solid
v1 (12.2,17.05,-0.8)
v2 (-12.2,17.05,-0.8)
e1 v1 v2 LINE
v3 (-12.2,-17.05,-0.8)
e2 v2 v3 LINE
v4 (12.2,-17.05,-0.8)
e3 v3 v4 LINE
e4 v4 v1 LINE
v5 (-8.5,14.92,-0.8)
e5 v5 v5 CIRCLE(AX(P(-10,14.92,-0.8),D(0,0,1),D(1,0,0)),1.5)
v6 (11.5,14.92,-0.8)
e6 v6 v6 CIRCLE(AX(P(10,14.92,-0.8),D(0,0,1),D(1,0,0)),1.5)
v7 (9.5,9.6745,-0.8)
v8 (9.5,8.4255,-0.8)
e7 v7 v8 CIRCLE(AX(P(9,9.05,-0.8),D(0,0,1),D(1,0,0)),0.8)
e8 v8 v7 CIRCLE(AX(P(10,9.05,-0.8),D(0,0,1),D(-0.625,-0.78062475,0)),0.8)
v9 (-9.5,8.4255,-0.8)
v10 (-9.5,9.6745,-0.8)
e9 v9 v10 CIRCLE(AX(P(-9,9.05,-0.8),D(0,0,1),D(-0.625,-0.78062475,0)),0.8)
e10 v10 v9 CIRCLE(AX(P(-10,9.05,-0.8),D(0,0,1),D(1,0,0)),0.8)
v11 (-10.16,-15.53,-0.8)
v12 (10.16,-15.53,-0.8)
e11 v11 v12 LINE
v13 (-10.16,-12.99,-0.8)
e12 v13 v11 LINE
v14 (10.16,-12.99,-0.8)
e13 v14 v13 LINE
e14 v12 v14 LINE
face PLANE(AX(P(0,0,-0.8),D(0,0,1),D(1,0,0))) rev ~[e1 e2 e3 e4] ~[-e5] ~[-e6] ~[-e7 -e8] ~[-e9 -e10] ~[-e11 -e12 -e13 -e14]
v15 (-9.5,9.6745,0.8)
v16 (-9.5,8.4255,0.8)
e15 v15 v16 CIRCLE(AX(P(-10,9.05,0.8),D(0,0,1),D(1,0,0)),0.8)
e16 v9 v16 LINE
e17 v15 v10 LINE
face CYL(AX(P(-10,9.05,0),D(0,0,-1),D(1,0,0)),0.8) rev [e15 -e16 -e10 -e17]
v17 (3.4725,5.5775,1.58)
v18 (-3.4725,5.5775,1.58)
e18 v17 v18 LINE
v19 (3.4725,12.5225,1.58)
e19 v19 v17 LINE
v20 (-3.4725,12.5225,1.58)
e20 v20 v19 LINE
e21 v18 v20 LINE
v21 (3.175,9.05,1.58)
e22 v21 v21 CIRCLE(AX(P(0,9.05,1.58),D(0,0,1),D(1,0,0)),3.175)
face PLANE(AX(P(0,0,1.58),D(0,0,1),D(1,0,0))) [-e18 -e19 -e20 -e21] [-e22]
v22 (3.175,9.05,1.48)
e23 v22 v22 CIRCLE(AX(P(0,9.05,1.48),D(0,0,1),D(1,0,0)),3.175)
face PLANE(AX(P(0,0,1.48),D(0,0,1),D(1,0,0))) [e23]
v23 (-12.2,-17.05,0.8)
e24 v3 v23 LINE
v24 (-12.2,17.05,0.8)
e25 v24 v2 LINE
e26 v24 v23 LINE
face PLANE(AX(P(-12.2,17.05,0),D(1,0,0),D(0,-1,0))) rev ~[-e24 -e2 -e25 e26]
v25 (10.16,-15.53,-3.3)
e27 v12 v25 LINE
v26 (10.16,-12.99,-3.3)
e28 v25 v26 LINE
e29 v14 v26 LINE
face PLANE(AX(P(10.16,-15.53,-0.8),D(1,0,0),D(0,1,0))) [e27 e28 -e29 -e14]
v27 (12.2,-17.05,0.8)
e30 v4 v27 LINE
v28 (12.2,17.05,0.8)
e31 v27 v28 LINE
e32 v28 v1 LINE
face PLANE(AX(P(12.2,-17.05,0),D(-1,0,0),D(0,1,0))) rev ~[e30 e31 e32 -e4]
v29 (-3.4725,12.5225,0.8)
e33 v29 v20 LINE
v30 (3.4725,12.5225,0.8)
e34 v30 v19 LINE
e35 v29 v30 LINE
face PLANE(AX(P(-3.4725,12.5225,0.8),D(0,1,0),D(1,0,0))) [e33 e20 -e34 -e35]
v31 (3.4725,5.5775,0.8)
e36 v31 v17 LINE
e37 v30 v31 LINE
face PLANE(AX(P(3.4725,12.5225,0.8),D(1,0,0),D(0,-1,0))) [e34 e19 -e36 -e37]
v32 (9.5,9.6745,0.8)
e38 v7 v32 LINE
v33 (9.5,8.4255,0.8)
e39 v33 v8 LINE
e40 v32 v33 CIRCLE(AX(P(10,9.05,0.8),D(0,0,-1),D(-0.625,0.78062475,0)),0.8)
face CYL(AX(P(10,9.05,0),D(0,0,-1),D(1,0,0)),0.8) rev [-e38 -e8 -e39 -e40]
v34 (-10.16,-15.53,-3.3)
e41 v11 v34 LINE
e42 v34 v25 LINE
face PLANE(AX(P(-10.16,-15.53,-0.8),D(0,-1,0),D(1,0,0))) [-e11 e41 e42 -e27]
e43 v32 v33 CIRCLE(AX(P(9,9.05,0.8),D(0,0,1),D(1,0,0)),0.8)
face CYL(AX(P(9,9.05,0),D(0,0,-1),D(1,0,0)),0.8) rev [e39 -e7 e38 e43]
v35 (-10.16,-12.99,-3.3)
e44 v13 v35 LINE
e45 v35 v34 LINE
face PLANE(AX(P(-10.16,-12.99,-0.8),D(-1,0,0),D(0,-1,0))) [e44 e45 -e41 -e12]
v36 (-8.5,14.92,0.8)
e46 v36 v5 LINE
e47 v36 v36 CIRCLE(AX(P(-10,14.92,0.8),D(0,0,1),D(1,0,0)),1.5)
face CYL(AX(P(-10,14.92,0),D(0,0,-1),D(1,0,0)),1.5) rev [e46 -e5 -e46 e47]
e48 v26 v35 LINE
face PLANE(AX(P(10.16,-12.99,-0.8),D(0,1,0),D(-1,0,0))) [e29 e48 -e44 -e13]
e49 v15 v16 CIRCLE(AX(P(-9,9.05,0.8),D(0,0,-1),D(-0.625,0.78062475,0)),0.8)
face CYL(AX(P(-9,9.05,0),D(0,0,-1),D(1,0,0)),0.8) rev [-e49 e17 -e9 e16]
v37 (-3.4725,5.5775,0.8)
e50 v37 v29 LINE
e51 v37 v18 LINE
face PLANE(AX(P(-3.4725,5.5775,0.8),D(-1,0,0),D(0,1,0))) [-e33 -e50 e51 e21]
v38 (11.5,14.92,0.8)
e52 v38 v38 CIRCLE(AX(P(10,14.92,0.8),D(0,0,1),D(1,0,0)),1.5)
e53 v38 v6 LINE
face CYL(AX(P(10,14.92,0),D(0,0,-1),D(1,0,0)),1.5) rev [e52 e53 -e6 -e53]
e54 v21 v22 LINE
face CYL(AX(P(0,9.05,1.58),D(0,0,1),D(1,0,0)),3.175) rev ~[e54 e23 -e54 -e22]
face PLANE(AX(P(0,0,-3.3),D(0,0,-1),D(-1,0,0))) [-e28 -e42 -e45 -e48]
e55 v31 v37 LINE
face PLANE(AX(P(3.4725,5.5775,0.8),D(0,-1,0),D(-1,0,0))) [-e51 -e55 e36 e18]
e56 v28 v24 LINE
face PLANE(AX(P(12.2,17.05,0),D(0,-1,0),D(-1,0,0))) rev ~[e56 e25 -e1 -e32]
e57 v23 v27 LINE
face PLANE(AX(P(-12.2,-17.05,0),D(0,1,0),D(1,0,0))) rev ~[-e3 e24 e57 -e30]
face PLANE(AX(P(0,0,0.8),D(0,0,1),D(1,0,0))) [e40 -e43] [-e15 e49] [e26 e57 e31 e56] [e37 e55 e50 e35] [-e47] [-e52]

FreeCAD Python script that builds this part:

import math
import FreeCAD as App
import Part
import Sketcher

V = App.Vector

doc = App.newDocument("Part")
body = doc.addObject("PartDesign::Body", "Body")

# Sketch on XY plane
sketch1 = body.newObject("Sketcher::SketchObject", "Sketch")
sketch1.AttachmentSupport = (doc.getObject("XY_Plane"), [""])
sketch1.MapMode = "FlatFace"
sketch1.addGeometry([
    Part.LineSegment(V(-12.2, 17.1, 0), V(-12.2, -17.1, 0)),  # 0
    Part.LineSegment(V(-12.2, -17.1, 0), V(12.2, -17.1, 0)),  # 1
    Part.LineSegment(V(12.2, -17.1, 0), V(12.2, 17.1, 0)),  # 2
    Part.LineSegment(V(12.2, 17.1, 0), V(-12.2, 17.1, 0)),  # 3
    Part.ArcOfCircle(Part.Circle(V(-9, 9.1, 0), V(0, 0, 1), 0.8), math.radians(-129), math.radians(129)),  # 4
    Part.ArcOfCircle(Part.Circle(V(-10, 9.1, 0), V(0, 0, 1), 0.8), math.radians(51), math.radians(309)),  # 5
    Part.Circle(V(-10, 14.9, 0), V(0, 0, 1), 1.5),  # 6
    Part.ArcOfCircle(Part.Circle(V(9, 9.1, 0), V(0, 0, 1), 0.8), math.radians(51), math.radians(309)),  # 7
    Part.ArcOfCircle(Part.Circle(V(10, 9.1, 0), V(0, 0, 1), 0.8), math.radians(-129), math.radians(129)),  # 8
    Part.Circle(V(10, 14.9, 0), V(0, 0, 1), 1.5),  # 9
], False)
sketch1.addConstraint([
    Sketcher.Constraint("Coincident", 0, 2, 1, 1),
    Sketcher.Constraint("Coincident", 1, 2, 2, 1),
    Sketcher.Constraint("Coincident", 2, 2, 3, 1),
    Sketcher.Constraint("Coincident", 3, 2, 0, 1),
    Sketcher.Constraint("Coincident", 4, 1, 5, 2),
    Sketcher.Constraint("Coincident", 5, 1, 4, 2),
    Sketcher.Constraint("Coincident", 7, 1, 8, 2),
    Sketcher.Constraint("Coincident", 8, 1, 7, 2),
    Sketcher.Constraint("Vertical", 0),
    Sketcher.Constraint("Horizontal", 1),
    Sketcher.Constraint("Vertical", 2),
    Sketcher.Constraint("Horizontal", 3),
    Sketcher.Constraint("Equal", 4, 5),
    Sketcher.Constraint("Equal", 5, 7),
    Sketcher.Constraint("Equal", 7, 8),
    Sketcher.Constraint("Equal", 6, 9),
    Sketcher.Constraint("Symmetric", 0, 2, 2, 2, -1, 1),
    Sketcher.Constraint("Symmetric", 4, 3, 7, 3, -2),
    Sketcher.Constraint("Symmetric", 5, 3, 8, 3, -2),
    Sketcher.Constraint("Symmetric", 6, 3, 9, 3, -2),
    Sketcher.Constraint("Horizontal", 4, 3, 5, 3),
    Sketcher.Constraint("Vertical", 5, 3, 6, 3),
    Sketcher.Constraint("Diameter", 6, 3.0),
    Sketcher.Constraint("Radius", 4, 0.8),
    Sketcher.Constraint("DistanceX", 1, 1, 1, 2, 24.4),
    Sketcher.Constraint("DistanceY", 0, 2, 0, 1, 34.1),
    Sketcher.Constraint("DistanceX", 5, 3, -1, 1, 10.0),
    Sketcher.Constraint("DistanceX", 4, 3, 7, 3, 18.0),
    Sketcher.Constraint("DistanceY", 8, 3, 2, 2, 8.0),
    Sketcher.Constraint("DistanceY", 9, 3, 2, 2, 2.13),
])
pad1 = body.newObject("PartDesign::Pad", "Pad")
pad1.Profile = sketch1
pad1.Length = 1.6
pad1.Midplane = True

# Sketch on XY plane
sketch2 = body.newObject("Sketcher::SketchObject", "Sketch001")
sketch2.AttachmentSupport = (doc.getObject("XY_Plane"), [""])
sketch2.MapMode = "FlatFace"
sketch2.AttachmentOffset = App.Placement(V(0, 0, -0.8), App.Rotation())
sketch2.addGeometry([
    Part.LineSegment(V(-10.2, -13, 0), V(10.2, -13, 0)),
    Part.LineSegment(V(10.2, -13, 0), V(10.2, -15.5, 0)),
    Part.LineSegment(V(10.2, -15.5, 0), V(-10.2, -15.5, 0)),
    Part.LineSegment(V(-10.2, -15.5, 0), V(-10.2, -13, 0)),
], False)
sketch2.addConstraint([
    Sketcher.Constraint("Coincident", 0, 2, 1, 1),
    Sketcher.Constraint("Coincident", 1, 2, 2, 1),
    Sketcher.Constraint("Coincident", 2, 2, 3, 1),
    Sketcher.Constraint("Coincident", 3, 2, 0, 1),
    Sketcher.Constraint("Horizontal", 0),
    Sketcher.Constraint("Vertical", 1),
    Sketcher.Constraint("Horizontal", 2),
    Sketcher.Constraint("Vertical", 3),
    Sketcher.Constraint("DistanceX", 0, 1, 0, 2, 20.32),
    Sketcher.Constraint("DistanceY", 1, 2, 1, 1, 2.54),
    Sketcher.Constraint("DistanceX", -1, 1, 0, 2, 10.16),
    Sketcher.Constraint("DistanceY", 0, 2, -1, 1, 12.99),
])
pad2 = body.newObject("PartDesign::Pad", "Pad001")
pad2.Profile = sketch2
pad2.Length = 2.5
pad2.Reversed = True

# Sketch on XY plane
sketch3 = body.newObject("Sketcher::SketchObject", "Sketch002")
sketch3.AttachmentSupport = (doc.getObject("XY_Plane"), [""])
sketch3.MapMode = "FlatFace"
sketch3.AttachmentOffset = App.Placement(V(0, 0, 0.8), App.Rotation())
sketch3.addGeometry([
    Part.LineSegment(V(3, 13, 0), V(-3, 13, 0)),
    Part.LineSegment(V(-3, 13, 0), V(-3, 6, 0)),
    Part.LineSegment(V(-3, 6, 0), V(3, 6, 0)),
    Part.LineSegment(V(3, 6, 0), V(3, 13, 0)),
], False)
sketch3.addConstraint([
    Sketcher.Constraint("Coincident", 0, 2, 1, 1),
    Sketcher.Constraint("Coincident", 1, 2, 2, 1),
    Sketcher.Constraint("Coincident", 2, 2, 3, 1),
    Sketcher.Constraint("Coincident", 3, 2, 0, 1),
    Sketcher.Constraint("Horizontal", 0),
    Sketcher.Constraint("Vertical", 1),
    Sketcher.Constraint("Horizontal", 2),
    Sketcher.Constraint("Vertical", 3),
    Sketcher.Constraint("Equal", 2, 1),
    Sketcher.Constraint("DistanceX", 0, 2, 0, 1, 6.945),
    Sketcher.Constraint("DistanceX", 0, 2, -1, 1, 3.4725),
    Sketcher.Constraint("DistanceY", -1, 1, 0, 2, 12.5225),
])
pad3 = body.newObject("PartDesign::Pad", "Pad002")
pad3.Profile = sketch3
pad3.Length = 0.78

# Sketch on XY plane
sketch4 = body.newObject("Sketcher::SketchObject", "Sketch003")
sketch4.AttachmentSupport = (doc.getObject("XY_Plane"), [""])
sketch4.MapMode = "FlatFace"
sketch4.AttachmentOffset = App.Placement(V(0, 0, 1.58), App.Rotation())
sketch4.addGeometry(Part.Circle(V(0, 9.1, 0), V(0, 0, 1), 3.2), False)
sketch4.addConstraint([
    Sketcher.Constraint("PointOnObject", 0, 3, -2),
    Sketcher.Constraint("Diameter", 0, 6.35),
    Sketcher.Constraint("DistanceY", -1, 1, 0, 3, 9.05),
])
pocket1 = body.newObject("PartDesign::Pocket", "Pocket")
pocket1.Profile = sketch4
pocket1.Length = 0.1

doc.recompute()
